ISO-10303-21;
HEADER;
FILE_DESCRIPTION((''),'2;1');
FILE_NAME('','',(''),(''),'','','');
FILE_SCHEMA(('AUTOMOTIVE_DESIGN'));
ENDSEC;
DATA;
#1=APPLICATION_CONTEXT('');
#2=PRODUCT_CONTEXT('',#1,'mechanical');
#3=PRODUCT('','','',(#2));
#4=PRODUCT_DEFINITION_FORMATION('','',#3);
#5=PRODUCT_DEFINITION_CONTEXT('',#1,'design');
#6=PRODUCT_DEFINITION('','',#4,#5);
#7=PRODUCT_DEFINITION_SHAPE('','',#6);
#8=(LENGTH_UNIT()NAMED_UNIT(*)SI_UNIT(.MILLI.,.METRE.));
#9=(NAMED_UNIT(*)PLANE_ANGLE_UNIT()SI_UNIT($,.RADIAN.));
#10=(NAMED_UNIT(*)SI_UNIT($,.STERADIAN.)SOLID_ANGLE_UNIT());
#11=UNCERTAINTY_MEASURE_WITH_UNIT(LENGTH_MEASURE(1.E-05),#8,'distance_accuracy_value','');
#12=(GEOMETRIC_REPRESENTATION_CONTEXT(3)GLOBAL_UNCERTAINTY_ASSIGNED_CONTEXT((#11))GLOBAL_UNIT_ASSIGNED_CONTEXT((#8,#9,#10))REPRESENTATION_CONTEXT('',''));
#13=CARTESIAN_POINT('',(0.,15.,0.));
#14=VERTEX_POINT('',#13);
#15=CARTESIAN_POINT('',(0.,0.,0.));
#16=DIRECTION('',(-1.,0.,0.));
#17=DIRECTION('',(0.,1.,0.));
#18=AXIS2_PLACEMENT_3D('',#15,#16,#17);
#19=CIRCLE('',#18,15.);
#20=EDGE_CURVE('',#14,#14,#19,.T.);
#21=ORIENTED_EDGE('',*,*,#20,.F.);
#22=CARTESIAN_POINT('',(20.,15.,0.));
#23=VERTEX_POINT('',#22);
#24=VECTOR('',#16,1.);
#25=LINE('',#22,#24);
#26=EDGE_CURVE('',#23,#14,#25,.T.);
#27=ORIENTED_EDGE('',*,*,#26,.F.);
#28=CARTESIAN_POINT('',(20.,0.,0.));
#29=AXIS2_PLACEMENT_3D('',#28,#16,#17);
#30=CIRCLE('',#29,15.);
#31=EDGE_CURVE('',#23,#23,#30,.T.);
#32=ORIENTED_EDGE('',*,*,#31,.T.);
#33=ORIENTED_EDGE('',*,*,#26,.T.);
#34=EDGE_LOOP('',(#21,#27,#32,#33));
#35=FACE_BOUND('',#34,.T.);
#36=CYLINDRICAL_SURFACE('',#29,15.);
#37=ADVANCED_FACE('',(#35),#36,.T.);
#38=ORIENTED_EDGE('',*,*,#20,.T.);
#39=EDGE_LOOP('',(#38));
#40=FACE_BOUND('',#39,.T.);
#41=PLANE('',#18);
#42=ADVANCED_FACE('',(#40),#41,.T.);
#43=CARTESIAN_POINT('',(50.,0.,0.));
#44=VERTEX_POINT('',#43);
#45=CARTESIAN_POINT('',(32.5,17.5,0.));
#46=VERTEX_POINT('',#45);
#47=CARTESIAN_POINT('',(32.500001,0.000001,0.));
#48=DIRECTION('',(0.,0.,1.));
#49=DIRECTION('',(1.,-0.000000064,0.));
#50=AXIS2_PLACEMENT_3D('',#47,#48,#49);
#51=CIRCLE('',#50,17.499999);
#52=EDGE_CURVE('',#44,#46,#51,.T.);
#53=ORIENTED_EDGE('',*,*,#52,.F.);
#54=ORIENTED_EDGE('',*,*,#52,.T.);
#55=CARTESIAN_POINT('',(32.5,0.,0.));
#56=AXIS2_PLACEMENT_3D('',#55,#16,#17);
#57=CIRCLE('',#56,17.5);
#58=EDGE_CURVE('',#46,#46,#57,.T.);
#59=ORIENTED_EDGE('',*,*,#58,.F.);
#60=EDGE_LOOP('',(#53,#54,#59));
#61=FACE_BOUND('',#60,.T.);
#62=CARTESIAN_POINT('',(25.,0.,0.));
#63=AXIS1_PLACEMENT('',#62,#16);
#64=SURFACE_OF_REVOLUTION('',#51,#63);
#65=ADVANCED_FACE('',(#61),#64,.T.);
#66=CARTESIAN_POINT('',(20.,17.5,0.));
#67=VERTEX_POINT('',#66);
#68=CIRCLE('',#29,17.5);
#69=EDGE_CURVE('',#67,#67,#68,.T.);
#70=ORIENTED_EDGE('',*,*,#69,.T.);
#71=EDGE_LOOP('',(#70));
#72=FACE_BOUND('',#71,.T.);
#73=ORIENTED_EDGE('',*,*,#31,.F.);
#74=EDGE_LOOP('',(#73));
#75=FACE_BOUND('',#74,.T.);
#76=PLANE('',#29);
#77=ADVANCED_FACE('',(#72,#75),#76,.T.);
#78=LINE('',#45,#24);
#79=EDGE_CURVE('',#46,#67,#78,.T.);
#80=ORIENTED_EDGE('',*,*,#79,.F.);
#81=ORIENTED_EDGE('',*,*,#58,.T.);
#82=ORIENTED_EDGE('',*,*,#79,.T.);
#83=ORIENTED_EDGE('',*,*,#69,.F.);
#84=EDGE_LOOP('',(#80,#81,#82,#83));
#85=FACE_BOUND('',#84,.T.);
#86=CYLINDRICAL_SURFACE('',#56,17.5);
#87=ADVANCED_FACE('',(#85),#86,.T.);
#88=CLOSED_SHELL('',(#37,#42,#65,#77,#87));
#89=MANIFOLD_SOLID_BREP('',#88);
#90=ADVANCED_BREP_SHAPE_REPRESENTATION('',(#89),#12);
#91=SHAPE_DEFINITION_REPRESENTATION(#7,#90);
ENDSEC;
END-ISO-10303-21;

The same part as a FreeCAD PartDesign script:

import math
import FreeCAD as App
import Part
import Sketcher
Q = App.Units.Quantity

doc = App.newDocument("Part")
body = doc.addObject("PartDesign::Body", "Body")

sketch1 = body.newObject("Sketcher::SketchObject", "Sketch")
sketch1.AttachmentSupport = (doc.getObject("XY_Plane"), [""])
sketch1.MapMode = "FlatFace"
sketch1.addGeometry([
    Part.LineSegment(App.Vector(0, 15, 0), App.Vector(0, 0, 0)),
    Part.LineSegment(App.Vector(0, 0, 0), App.Vector(50, 0, 0)),
    Part.ArcOfCircle(Part.Circle(App.Vector(32.500001, 0.000001, 0), App.Vector(0, 0, 1), 17.499999), math.radians(-0.000004), math.radians(90.000004)),
    Part.LineSegment(App.Vector(32.5, 17.5, 0), App.Vector(20, 17.5, 0)),
    Part.LineSegment(App.Vector(20, 17.5, 0), App.Vector(20, 15, 0)),
    Part.LineSegment(App.Vector(20, 15, 0), App.Vector(0, 15, 0)),
], False)
sketch1.addConstraint([
    Sketcher.Constraint("Coincident", 0, 2, 1, 1),
    Sketcher.Constraint("Coincident", 1, 2, 2, 1),
    Sketcher.Constraint("Tangent", 2, 2, 3, 1),
    Sketcher.Constraint("Coincident", 3, 2, 4, 1),
    Sketcher.Constraint("Coincident", 4, 2, 5, 1),
    Sketcher.Constraint("Coincident", 5, 2, 0, 1),
    Sketcher.Constraint("Vertical", 0),
    Sketcher.Constraint("Horizontal", 1),
    Sketcher.Constraint("Horizontal", 3),
    Sketcher.Constraint("Vertical", 4),
    Sketcher.Constraint("Horizontal", 5),
    Sketcher.Constraint("Coincident", 0, 2, -1, 1),
    Sketcher.Constraint("PointOnObject", 2, 3, -1),
    Sketcher.Constraint("Radius", 2, Q("17.499999 mm")),
    Sketcher.Constraint("DistanceX", 1, 1, 1, 2, Q("50 mm")),
    Sketcher.Constraint("DistanceX", 5, 2, 5, 1, Q("20 mm")),
    Sketcher.Constraint("DistanceY", 0, 2, 0, 1, Q("15 mm")),
])
revolution = body.newObject("PartDesign::Revolution", "Revolution")
revolution.Profile = sketch1
revolution.ReferenceAxis = (sketch1, ["H_Axis"])
revolution.Angle = 360

doc.recompute()
